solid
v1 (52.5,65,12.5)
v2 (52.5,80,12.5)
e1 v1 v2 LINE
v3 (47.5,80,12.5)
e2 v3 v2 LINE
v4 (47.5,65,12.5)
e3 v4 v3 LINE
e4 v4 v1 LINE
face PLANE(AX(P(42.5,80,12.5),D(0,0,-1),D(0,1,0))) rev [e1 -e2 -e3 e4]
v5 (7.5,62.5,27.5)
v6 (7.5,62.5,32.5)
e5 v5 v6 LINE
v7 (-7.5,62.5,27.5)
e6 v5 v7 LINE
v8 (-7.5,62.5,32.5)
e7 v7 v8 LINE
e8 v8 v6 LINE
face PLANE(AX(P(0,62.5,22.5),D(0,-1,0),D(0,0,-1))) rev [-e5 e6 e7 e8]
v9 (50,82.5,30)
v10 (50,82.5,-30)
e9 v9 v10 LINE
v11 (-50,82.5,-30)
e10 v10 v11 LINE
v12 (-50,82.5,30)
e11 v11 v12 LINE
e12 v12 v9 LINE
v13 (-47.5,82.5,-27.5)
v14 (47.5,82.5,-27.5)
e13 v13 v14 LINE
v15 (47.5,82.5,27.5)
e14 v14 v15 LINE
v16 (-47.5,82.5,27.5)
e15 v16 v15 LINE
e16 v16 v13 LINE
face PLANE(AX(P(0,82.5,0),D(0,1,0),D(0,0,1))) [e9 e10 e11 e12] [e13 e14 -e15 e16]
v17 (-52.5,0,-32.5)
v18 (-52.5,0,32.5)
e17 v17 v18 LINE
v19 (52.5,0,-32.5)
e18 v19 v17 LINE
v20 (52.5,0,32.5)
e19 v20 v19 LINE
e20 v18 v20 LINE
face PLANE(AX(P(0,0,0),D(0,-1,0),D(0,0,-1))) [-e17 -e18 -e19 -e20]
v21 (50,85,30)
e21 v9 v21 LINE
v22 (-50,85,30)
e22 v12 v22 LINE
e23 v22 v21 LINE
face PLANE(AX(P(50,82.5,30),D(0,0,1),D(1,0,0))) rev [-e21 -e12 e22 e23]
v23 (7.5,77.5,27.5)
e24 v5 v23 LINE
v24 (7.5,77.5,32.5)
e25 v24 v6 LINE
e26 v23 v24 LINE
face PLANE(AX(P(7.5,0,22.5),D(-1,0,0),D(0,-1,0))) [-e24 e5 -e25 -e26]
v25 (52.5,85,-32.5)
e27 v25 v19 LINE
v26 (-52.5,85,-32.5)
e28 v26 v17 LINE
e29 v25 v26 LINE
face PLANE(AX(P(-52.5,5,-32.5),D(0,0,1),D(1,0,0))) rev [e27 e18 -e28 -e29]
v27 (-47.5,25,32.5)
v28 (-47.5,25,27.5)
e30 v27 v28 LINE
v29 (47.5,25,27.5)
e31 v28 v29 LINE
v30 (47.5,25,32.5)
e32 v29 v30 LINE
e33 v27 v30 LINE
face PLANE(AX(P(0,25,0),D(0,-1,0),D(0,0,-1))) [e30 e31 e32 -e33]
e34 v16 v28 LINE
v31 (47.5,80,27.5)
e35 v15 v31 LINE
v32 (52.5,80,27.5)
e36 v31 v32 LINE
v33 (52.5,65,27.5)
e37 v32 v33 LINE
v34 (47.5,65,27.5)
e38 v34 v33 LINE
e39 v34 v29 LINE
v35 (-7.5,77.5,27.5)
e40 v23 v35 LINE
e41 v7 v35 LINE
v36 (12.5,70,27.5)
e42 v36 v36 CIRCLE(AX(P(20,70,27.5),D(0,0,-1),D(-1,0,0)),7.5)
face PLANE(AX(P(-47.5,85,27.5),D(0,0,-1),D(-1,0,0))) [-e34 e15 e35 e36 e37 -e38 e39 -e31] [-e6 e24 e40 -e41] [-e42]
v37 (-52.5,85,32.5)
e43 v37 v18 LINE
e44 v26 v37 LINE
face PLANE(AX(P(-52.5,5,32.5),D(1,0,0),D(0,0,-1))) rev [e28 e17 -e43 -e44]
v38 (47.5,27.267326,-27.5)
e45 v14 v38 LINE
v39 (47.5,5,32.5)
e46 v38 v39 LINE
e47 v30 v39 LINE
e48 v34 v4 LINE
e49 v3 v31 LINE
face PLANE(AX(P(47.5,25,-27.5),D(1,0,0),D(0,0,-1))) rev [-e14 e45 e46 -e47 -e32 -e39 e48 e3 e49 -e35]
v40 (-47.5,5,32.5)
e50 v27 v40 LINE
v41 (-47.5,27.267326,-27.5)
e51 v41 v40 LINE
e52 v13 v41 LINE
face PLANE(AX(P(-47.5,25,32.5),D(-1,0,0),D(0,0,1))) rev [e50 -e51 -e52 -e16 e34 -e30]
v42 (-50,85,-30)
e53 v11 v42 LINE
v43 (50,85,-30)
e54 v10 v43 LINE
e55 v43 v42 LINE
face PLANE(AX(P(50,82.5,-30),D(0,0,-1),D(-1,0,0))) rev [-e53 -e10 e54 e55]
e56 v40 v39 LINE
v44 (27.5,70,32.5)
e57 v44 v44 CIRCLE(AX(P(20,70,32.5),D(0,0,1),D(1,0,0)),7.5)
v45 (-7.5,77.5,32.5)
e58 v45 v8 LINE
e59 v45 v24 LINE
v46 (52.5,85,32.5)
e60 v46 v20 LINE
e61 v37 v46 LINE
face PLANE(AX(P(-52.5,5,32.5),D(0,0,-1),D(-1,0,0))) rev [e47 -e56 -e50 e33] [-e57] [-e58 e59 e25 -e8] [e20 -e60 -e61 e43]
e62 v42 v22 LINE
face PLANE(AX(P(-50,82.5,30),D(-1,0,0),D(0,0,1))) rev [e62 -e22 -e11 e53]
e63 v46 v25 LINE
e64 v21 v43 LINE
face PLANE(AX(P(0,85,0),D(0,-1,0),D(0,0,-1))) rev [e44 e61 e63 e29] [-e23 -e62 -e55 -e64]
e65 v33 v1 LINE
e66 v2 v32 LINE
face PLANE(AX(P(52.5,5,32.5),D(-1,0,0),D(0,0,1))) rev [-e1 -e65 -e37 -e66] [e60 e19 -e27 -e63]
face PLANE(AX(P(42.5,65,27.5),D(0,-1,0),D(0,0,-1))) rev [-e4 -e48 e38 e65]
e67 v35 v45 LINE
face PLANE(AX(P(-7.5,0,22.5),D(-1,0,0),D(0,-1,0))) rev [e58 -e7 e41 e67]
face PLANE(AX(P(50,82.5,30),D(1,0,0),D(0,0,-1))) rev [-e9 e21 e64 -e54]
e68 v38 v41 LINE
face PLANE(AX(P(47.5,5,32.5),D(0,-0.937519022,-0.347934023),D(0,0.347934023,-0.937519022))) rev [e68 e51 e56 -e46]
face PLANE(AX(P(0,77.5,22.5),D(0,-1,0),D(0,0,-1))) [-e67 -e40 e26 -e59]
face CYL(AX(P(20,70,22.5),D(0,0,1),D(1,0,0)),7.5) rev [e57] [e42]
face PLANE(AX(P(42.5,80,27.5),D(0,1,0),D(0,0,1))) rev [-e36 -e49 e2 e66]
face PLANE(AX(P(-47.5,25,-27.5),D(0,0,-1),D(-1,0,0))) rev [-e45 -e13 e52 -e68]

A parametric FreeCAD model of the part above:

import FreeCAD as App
import Part
import Sketcher

V = App.Vector
Q = App.Units.Quantity


def add_polygon(sketch, points):
    """Adds a closed chain of lines whose ends are joined by coincident constraints."""
    first, n = sketch.GeometryCount, len(points)
    for a, b in zip(points, points[1:] + points[:1]):
        sketch.addGeometry(Part.LineSegment(App.Vector(*a, 0), App.Vector(*b, 0)), False)
    for i in range(n):
        sketch.addConstraint(Sketcher.Constraint("Coincident", first + i, 2, first + (i + 1) % n, 1))

doc = App.newDocument("Part")
params = doc.addObject("Spreadsheet::Sheet", "Params")
for row, (alias, value) in enumerate([
    ("sketch1_width", "105 mm"),
    ("sketch1_height", "65 mm"),
    ("pad1_length", "5 mm"),
    ("sketch2_width", "95 mm"),
    ("sketch2_width2", "5 mm"),
    ("sketch2_height", "60 mm"),
    ("sketch2_height2", "65 mm"),
    ("pad2_length", "20 mm"),
    ("sketch3_width", "105 mm"),
    ("sketch3_width2", "95 mm"),
    ("sketch3_height", "65 mm"),
    ("sketch3_height2", "55 mm"),
    ("pad3_length", "60 mm"),
    ("sketch4_width", "100 mm"),
    ("sketch4_height", "60 mm"),
    ("pocket1_length", "2.5 mm"),
    ("sketch5_diameter", "15 mm"),
    ("sketch5_width", "15 mm"),
    ("pocket2_length", "10 mm"),
    ("sketch6_width", "15 mm"),
    ("pocket3_length", "10 mm"),
    ("sketch7_height", "60 mm"),
    ("pad4_length", "95 mm"),
], start=1):
    params.set(f"A{row}", alias)
    params.set(f"B{row}", "=" + value)
    params.setAlias(f"B{row}", alias)

body = doc.addObject("PartDesign::Body", "Body")

sketch1 = doc.addObject("Sketcher::SketchObject", "Sketch")
body.addObject(sketch1)
sketch1.AttachmentSupport = (doc.XZ_Plane, [""])
sketch1.MapMode = "FlatFace"
add_polygon(sketch1, [(-52, -32), (-52, 32), (52, 32), (52, -32)])
sketch1.addConstraint(Sketcher.Constraint("Vertical", 0))
sketch1.addConstraint(Sketcher.Constraint("Horizontal", 1))
sketch1.addConstraint(Sketcher.Constraint("Vertical", 2))
sketch1.addConstraint(Sketcher.Constraint("Horizontal", 3))
sketch1.addConstraint(Sketcher.Constraint("Symmetric", 0, 2, 2, 2, -1, 1))
sketch1.addConstraint(Sketcher.Constraint("DistanceX", 1, 1, 1, 2, Q("105 mm")))
sketch1.addConstraint(Sketcher.Constraint("DistanceY", 0, 1, 0, 2, Q("65 mm")))
sketch1.setExpression("Constraints[9]", "Params.sketch1_width")
sketch1.setExpression("Constraints[10]", "Params.sketch1_height")
pad1 = doc.addObject("PartDesign::Pad", "Pad")
body.addObject(pad1)
pad1.Profile = sketch1
pad1.setExpression("Length", "Params.pad1_length")
pad1.Reversed = True

sketch2 = doc.addObject("Sketcher::SketchObject", "Sketch001")
body.addObject(sketch2)
sketch2.AttachmentSupport = (doc.XZ_Plane, [""])
sketch2.MapMode = "FlatFace"
sketch2.AttachmentOffset = App.Placement(V(0, 0, -5), App.Rotation())
add_polygon(sketch2, [(-48, 32), (-48, -28), (48, -28), (48, 32), (52, 32), (52, -32), (-52, -32), (-52, 32)])
sketch2.addConstraint(Sketcher.Constraint("Vertical", 0))
sketch2.addConstraint(Sketcher.Constraint("Horizontal", 1))
sketch2.addConstraint(Sketcher.Constraint("Vertical", 2))
sketch2.addConstraint(Sketcher.Constraint("Horizontal", 3))
sketch2.addConstraint(Sketcher.Constraint("Vertical", 4))
sketch2.addConstraint(Sketcher.Constraint("Horizontal", 5))
sketch2.addConstraint(Sketcher.Constraint("Vertical", 6))
sketch2.addConstraint(Sketcher.Constraint("Horizontal", 7))
sketch2.addConstraint(Sketcher.Constraint("Symmetric", 3, 2, 5, 2, -1, 1))
sketch2.addConstraint(Sketcher.Constraint("Symmetric", 2, 2, 7, 2, -2))
sketch2.addConstraint(Sketcher.Constraint("DistanceX", 1, 1, 1, 2, Q("95 mm")))
sketch2.addConstraint(Sketcher.Constraint("DistanceX", 3, 1, 3, 2, Q("5 mm")))
sketch2.addConstraint(Sketcher.Constraint("DistanceY", 0, 2, 0, 1, Q("60 mm")))
sketch2.addConstraint(Sketcher.Constraint("DistanceY", 4, 2, 4, 1, Q("65 mm")))
sketch2.setExpression("Constraints[18]", "Params.sketch2_width")
sketch2.setExpression("Constraints[19]", "Params.sketch2_width2")
sketch2.setExpression("Constraints[20]", "Params.sketch2_height")
sketch2.setExpression("Constraints[21]", "Params.sketch2_height2")
pad2 = doc.addObject("PartDesign::Pad", "Pad001")
body.addObject(pad2)
pad2.Profile = sketch2
pad2.setExpression("Length", "Params.pad2_length")
pad2.Reversed = True

sketch3 = doc.addObject("Sketcher::SketchObject", "Sketch002")
body.addObject(sketch3)
sketch3.AttachmentSupport = (doc.XZ_Plane, [""])
sketch3.MapMode = "FlatFace"
sketch3.AttachmentOffset = App.Placement(V(0, 0, -25), App.Rotation())
add_polygon(sketch3, [(-52, -32), (-52, 32), (52, 32), (52, -32)])
add_polygon(sketch3, [(48, 28), (-48, 28), (-48, -28), (48, -28)])
sketch3.addConstraint(Sketcher.Constraint("Vertical", 0))
sketch3.addConstraint(Sketcher.Constraint("Horizontal", 1))
sketch3.addConstraint(Sketcher.Constraint("Vertical", 2))
sketch3.addConstraint(Sketcher.Constraint("Horizontal", 3))
sketch3.addConstraint(Sketcher.Constraint("Horizontal", 4))
sketch3.addConstraint(Sketcher.Constraint("Vertical", 5))
sketch3.addConstraint(Sketcher.Constraint("Horizontal", 6))
sketch3.addConstraint(Sketcher.Constraint("Vertical", 7))
sketch3.addConstraint(Sketcher.Constraint("Symmetric", 0, 2, 2, 2, -1, 1))
sketch3.addConstraint(Sketcher.Constraint("Symmetric", 4, 2, 6, 2, -1, 1))
sketch3.addConstraint(Sketcher.Constraint("DistanceX", 1, 1, 1, 2, Q("105 mm")))
sketch3.addConstraint(Sketcher.Constraint("DistanceX", 4, 2, 4, 1, Q("95 mm")))
sketch3.addConstraint(Sketcher.Constraint("DistanceY", 0, 1, 0, 2, Q("65 mm")))
sketch3.addConstraint(Sketcher.Constraint("DistanceY", 5, 2, 5, 1, Q("55 mm")))
sketch3.setExpression("Constraints[18]", "Params.sketch3_width")
sketch3.setExpression("Constraints[19]", "Params.sketch3_width2")
sketch3.setExpression("Constraints[20]", "Params.sketch3_height")
sketch3.setExpression("Constraints[21]", "Params.sketch3_height2")
pad3 = doc.addObject("PartDesign::Pad", "Pad002")
body.addObject(pad3)
pad3.Profile = sketch3
pad3.setExpression("Length", "Params.pad3_length")
pad3.Reversed = True

sketch4 = doc.addObject("Sketcher::SketchObject", "Sketch003")
body.addObject(sketch4)
sketch4.AttachmentSupport = (doc.XZ_Plane, [""])
sketch4.MapMode = "FlatFace"
sketch4.AttachmentOffset = App.Placement(V(0, 0, -85), App.Rotation())
add_polygon(sketch4, [(-50, -30), (-50, 30), (50, 30), (50, -30)])
sketch4.addConstraint(Sketcher.Constraint("Vertical", 0))
sketch4.addConstraint(Sketcher.Constraint("Horizontal", 1))
sketch4.addConstraint(Sketcher.Constraint("Vertical", 2))
sketch4.addConstraint(Sketcher.Constraint("Horizontal", 3))
sketch4.addConstraint(Sketcher.Constraint("Symmetric", 0, 2, 2, 2, -1, 1))
sketch4.addConstraint(Sketcher.Constraint("DistanceX", 1, 1, 1, 2, Q("100 mm")))
sketch4.addConstraint(Sketcher.Constraint("DistanceY", 0, 1, 0, 2, Q("60 mm")))
sketch4.setExpression("Constraints[9]", "Params.sketch4_width")
sketch4.setExpression("Constraints[10]", "Params.sketch4_height")
pocket1 = doc.addObject("PartDesign::Pocket", "Pocket")
body.addObject(pocket1)
pocket1.Profile = sketch4
pocket1.setExpression("Length", "Params.pocket1_length")
pocket1.Reversed = True

sketch5 = doc.addObject("Sketcher::SketchObject", "Sketch004")
body.addObject(sketch5)
sketch5.AttachmentSupport = (doc.XY_Plane, [""])
sketch5.MapMode = "FlatFace"
sketch5.AttachmentOffset = App.Placement(V(0, 0, 32.5), App.Rotation())
add_polygon(sketch5, [(-8, 78), (-8, 62), (8, 62), (8, 78)])
sketch5.addGeometry(Part.Circle(V(20, 70, 0), V(0, 0, 1), 8), False)
sketch5.addConstraint(Sketcher.Constraint("Vertical", 0))
sketch5.addConstraint(Sketcher.Constraint("Horizontal", 1))
sketch5.addConstraint(Sketcher.Constraint("Vertical", 2))
sketch5.addConstraint(Sketcher.Constraint("Horizontal", 3))
sketch5.addConstraint(Sketcher.Constraint("Equal", 3, 0))
sketch5.addConstraint(Sketcher.Constraint("Diameter", 4, Q("15 mm")))
sketch5.addConstraint(Sketcher.Constraint("DistanceX", 1, 1, 1, 2, Q("15 mm")))
sketch5.addConstraint(Sketcher.Constraint("DistanceX", -1, 1, 4, 3, Q("20 mm")))
sketch5.addConstraint(Sketcher.Constraint("DistanceY", -1, 1, 4, 3, Q("70 mm")))
sketch5.addConstraint(Sketcher.Constraint("DistanceX", 0, 2, -1, 1, Q("7.5 mm")))
sketch5.addConstraint(Sketcher.Constraint("DistanceY", -1, 1, 0, 2, Q("62.5 mm")))
sketch5.setExpression("Constraints[9]", "Params.sketch5_diameter")
sketch5.setExpression("Constraints[10]", "Params.sketch5_width")
pocket2 = doc.addObject("PartDesign::Pocket", "Pocket001")
body.addObject(pocket2)
pocket2.Profile = sketch5
pocket2.setExpression("Length", "Params.pocket2_length")

sketch6 = doc.addObject("Sketcher::SketchObject", "Sketch005")
body.addObject(sketch6)
sketch6.AttachmentSupport = (doc.YZ_Plane, [""])
sketch6.MapMode = "FlatFace"
sketch6.AttachmentOffset = App.Placement(V(0, 0, 52.5), App.Rotation())
add_polygon(sketch6, [(80, 28), (65, 28), (65, 12), (80, 12)])
sketch6.addConstraint(Sketcher.Constraint("Horizontal", 0))
sketch6.addConstraint(Sketcher.Constraint("Vertical", 1))
sketch6.addConstraint(Sketcher.Constraint("Horizontal", 2))
sketch6.addConstraint(Sketcher.Constraint("Vertical", 3))
sketch6.addConstraint(Sketcher.Constraint("Equal", 2, 1))
sketch6.addConstraint(Sketcher.Constraint("DistanceX", 0, 2, 0, 1, Q("15 mm")))
sketch6.addConstraint(Sketcher.Constraint("DistanceX", -1, 1, 0, 2, Q("65 mm")))
sketch6.addConstraint(Sketcher.Constraint("DistanceY", -1, 1, 0, 2, Q("27.5 mm")))
sketch6.setExpression("Constraints[9]", "Params.sketch6_width")
pocket3 = doc.addObject("PartDesign::Pocket", "Pocket002")
body.addObject(pocket3)
pocket3.Profile = sketch6
pocket3.setExpression("Length", "Params.pocket3_length")

sketch7 = doc.addObject("Sketcher::SketchObject", "Sketch006")
body.addObject(sketch7)
sketch7.AttachmentSupport = (doc.YZ_Plane, [""])
sketch7.MapMode = "FlatFace"
sketch7.AttachmentOffset = App.Placement(V(0, 0, -47.5), App.Rotation())
add_polygon(sketch7, [(27, -28), (5, 32), (5, -28)])
sketch7.addConstraint(Sketcher.Constraint("Vertical", 1))
sketch7.addConstraint(Sketcher.Constraint("Horizontal", 2))
sketch7.addConstraint(Sketcher.Constraint("DistanceY", 1, 2, 1, 1, Q("60 mm")))
sketch7.addConstraint(Sketcher.Constraint("DistanceX", -1, 1, 0, 2, Q("5 mm")))
sketch7.addConstraint(Sketcher.Constraint("DistanceY", -1, 1, 0, 2, Q("32.5 mm")))
sketch7.addConstraint(Sketcher.Constraint("Distance", 0, Q("63.998701 mm")))
sketch7.setExpression("Constraints[5]", "Params.sketch7_height")
pad4 = doc.addObject("PartDesign::Pad", "Pad003")
body.addObject(pad4)
pad4.Profile = sketch7
pad4.setExpression("Length", "Params.pad4_length")

doc.recompute()
